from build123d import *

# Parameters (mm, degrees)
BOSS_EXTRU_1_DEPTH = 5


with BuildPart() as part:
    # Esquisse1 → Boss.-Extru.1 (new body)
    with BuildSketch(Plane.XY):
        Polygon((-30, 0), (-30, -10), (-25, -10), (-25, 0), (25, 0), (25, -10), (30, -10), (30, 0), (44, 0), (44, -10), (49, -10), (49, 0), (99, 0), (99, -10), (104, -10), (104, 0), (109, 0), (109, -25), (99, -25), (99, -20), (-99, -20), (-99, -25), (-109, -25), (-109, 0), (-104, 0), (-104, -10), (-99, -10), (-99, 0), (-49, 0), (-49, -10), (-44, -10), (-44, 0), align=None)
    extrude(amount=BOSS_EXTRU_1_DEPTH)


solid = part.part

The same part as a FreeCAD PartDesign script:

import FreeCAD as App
import Part
import Sketcher

V = App.Vector
Q = App.Units.Quantity


def add_polygon(sketch, points):
    """Adds a closed chain of lines whose ends are joined by coincident constraints."""
    first, n = sketch.GeometryCount, len(points)
    for a, b in zip(points, points[1:] + points[:1]):
        sketch.addGeometry(Part.LineSegment(App.Vector(*a, 0), App.Vector(*b, 0)), False)
    for i in range(n):
        sketch.addConstraint(Sketcher.Constraint("Coincident", first + i, 2, first + (i + 1) % n, 1))

doc = App.newDocument("Part")
body = doc.addObject("PartDesign::Body", "Body")

sketch1 = doc.addObject("Sketcher::SketchObject", "Sketch")
body.addObject(sketch1)
sketch1.AttachmentSupport = (doc.XY_Plane, [""])
sketch1.MapMode = "FlatFace"
add_polygon(sketch1, [(-30, -10), (-30, 0), (-44, 0), (-44, -10), (-49, -10), (-49, 0), (-99, 0), (-99, -10), (-104, -10), (-104, 0), (-109, 0), (-109, -25), (-99, -25), (-99, -20), (99, -20), (99, -25), (109, -25), (109, 0), (104, 0), (104, -10), (99, -10), (99, 0), (49, 0), (49, -10), (44, -10), (44, 0), (30, 0), (30, -10), (25, -10), (25, 0), (-25, 0), (-25, -10)])
sketch1.addConstraint([
    Sketcher.Constraint("Vertical", 0),
    Sketcher.Constraint("Horizontal", 1),
    Sketcher.Constraint("Vertical", 2),
    Sketcher.Constraint("Horizontal", 3),
    Sketcher.Constraint("Vertical", 4),
    Sketcher.Constraint("Horizontal", 5),
    Sketcher.Constraint("Vertical", 6),
    Sketcher.Constraint("Horizontal", 7),
    Sketcher.Constraint("Vertical", 8),
    Sketcher.Constraint("Horizontal", 9),
    Sketcher.Constraint("Vertical", 10),
    Sketcher.Constraint("Horizontal", 11),
    Sketcher.Constraint("Vertical", 12),
    Sketcher.Constraint("Horizontal", 13),
    Sketcher.Constraint("Vertical", 14),
    Sketcher.Constraint("Horizontal", 15),
    Sketcher.Constraint("Vertical", 16),
    Sketcher.Constraint("Horizontal", 17),
    Sketcher.Constraint("Vertical", 18),
    Sketcher.Constraint("Horizontal", 19),
    Sketcher.Constraint("Vertical", 20),
    Sketcher.Constraint("Horizontal", 21),
    Sketcher.Constraint("Vertical", 22),
    Sketcher.Constraint("Horizontal", 23),
    Sketcher.Constraint("Vertical", 24),
    Sketcher.Constraint("Horizontal", 25),
    Sketcher.Constraint("Vertical", 26),
    Sketcher.Constraint("Horizontal", 27),
    Sketcher.Constraint("Vertical", 28),
    Sketcher.Constraint("Horizontal", 29),
    Sketcher.Constraint("Vertical", 30),
    Sketcher.Constraint("Horizontal", 31),
    Sketcher.Constraint("Symmetric", 9, 2, 16, 2, -1, 1),
    Sketcher.Constraint("Symmetric", 5, 2, 20, 2, -1, 1),
    Sketcher.Constraint("Symmetric", 1, 2, 24, 2, -1, 1),
    Sketcher.Constraint("Symmetric", 28, 2, 29, 2, -1, 1),
    Sketcher.Constraint("Symmetric", 11, 2, 14, 2, -2),
    Sketcher.Constraint("Symmetric", 8, 2, 17, 2, -2),
    Sketcher.Constraint("Symmetric", 4, 2, 21, 2, -2),
    Sketcher.Constraint("Symmetric", 0, 2, 25, 2, -2),
    Sketcher.Constraint("Horizontal", 3, 2, 6, 2),
    Sketcher.Constraint("Horizontal", 7, 2, 18, 2),
    Sketcher.Constraint("Horizontal", 19, 2, 22, 2),
    Sketcher.Constraint("Horizontal", 23, 2, 26, 2),
    Sketcher.Constraint("Horizontal", 27, 2, 30, 2),
    Sketcher.Constraint("Vertical", 6, 2, 11, 2),
    Sketcher.Constraint("Equal", 3, 7),
    Sketcher.Constraint("Equal", 7, 9),
    Sketcher.Constraint("Equal", 23, 27),
    Sketcher.Constraint("Equal", 21, 29),
    Sketcher.Constraint("Equal", 15, 0),
    Sketcher.Constraint("Equal", 31, 12),
    Sketcher.Constraint("DistanceX", 1, 2, 1, 1, Q("14 mm")),
    Sketcher.Constraint("DistanceX", 3, 2, 3, 1, Q("5 mm")),
    Sketcher.Constraint("DistanceX", 5, 2, 5, 1, Q("50 mm")),
    Sketcher.Constraint("DistanceY", 10, 2, 10, 1, Q("25 mm")),
])
pad1 = doc.addObject("PartDesign::Pad", "Pad")
body.addObject(pad1)
pad1.Profile = sketch1
pad1.Length = 5

doc.recompute()
